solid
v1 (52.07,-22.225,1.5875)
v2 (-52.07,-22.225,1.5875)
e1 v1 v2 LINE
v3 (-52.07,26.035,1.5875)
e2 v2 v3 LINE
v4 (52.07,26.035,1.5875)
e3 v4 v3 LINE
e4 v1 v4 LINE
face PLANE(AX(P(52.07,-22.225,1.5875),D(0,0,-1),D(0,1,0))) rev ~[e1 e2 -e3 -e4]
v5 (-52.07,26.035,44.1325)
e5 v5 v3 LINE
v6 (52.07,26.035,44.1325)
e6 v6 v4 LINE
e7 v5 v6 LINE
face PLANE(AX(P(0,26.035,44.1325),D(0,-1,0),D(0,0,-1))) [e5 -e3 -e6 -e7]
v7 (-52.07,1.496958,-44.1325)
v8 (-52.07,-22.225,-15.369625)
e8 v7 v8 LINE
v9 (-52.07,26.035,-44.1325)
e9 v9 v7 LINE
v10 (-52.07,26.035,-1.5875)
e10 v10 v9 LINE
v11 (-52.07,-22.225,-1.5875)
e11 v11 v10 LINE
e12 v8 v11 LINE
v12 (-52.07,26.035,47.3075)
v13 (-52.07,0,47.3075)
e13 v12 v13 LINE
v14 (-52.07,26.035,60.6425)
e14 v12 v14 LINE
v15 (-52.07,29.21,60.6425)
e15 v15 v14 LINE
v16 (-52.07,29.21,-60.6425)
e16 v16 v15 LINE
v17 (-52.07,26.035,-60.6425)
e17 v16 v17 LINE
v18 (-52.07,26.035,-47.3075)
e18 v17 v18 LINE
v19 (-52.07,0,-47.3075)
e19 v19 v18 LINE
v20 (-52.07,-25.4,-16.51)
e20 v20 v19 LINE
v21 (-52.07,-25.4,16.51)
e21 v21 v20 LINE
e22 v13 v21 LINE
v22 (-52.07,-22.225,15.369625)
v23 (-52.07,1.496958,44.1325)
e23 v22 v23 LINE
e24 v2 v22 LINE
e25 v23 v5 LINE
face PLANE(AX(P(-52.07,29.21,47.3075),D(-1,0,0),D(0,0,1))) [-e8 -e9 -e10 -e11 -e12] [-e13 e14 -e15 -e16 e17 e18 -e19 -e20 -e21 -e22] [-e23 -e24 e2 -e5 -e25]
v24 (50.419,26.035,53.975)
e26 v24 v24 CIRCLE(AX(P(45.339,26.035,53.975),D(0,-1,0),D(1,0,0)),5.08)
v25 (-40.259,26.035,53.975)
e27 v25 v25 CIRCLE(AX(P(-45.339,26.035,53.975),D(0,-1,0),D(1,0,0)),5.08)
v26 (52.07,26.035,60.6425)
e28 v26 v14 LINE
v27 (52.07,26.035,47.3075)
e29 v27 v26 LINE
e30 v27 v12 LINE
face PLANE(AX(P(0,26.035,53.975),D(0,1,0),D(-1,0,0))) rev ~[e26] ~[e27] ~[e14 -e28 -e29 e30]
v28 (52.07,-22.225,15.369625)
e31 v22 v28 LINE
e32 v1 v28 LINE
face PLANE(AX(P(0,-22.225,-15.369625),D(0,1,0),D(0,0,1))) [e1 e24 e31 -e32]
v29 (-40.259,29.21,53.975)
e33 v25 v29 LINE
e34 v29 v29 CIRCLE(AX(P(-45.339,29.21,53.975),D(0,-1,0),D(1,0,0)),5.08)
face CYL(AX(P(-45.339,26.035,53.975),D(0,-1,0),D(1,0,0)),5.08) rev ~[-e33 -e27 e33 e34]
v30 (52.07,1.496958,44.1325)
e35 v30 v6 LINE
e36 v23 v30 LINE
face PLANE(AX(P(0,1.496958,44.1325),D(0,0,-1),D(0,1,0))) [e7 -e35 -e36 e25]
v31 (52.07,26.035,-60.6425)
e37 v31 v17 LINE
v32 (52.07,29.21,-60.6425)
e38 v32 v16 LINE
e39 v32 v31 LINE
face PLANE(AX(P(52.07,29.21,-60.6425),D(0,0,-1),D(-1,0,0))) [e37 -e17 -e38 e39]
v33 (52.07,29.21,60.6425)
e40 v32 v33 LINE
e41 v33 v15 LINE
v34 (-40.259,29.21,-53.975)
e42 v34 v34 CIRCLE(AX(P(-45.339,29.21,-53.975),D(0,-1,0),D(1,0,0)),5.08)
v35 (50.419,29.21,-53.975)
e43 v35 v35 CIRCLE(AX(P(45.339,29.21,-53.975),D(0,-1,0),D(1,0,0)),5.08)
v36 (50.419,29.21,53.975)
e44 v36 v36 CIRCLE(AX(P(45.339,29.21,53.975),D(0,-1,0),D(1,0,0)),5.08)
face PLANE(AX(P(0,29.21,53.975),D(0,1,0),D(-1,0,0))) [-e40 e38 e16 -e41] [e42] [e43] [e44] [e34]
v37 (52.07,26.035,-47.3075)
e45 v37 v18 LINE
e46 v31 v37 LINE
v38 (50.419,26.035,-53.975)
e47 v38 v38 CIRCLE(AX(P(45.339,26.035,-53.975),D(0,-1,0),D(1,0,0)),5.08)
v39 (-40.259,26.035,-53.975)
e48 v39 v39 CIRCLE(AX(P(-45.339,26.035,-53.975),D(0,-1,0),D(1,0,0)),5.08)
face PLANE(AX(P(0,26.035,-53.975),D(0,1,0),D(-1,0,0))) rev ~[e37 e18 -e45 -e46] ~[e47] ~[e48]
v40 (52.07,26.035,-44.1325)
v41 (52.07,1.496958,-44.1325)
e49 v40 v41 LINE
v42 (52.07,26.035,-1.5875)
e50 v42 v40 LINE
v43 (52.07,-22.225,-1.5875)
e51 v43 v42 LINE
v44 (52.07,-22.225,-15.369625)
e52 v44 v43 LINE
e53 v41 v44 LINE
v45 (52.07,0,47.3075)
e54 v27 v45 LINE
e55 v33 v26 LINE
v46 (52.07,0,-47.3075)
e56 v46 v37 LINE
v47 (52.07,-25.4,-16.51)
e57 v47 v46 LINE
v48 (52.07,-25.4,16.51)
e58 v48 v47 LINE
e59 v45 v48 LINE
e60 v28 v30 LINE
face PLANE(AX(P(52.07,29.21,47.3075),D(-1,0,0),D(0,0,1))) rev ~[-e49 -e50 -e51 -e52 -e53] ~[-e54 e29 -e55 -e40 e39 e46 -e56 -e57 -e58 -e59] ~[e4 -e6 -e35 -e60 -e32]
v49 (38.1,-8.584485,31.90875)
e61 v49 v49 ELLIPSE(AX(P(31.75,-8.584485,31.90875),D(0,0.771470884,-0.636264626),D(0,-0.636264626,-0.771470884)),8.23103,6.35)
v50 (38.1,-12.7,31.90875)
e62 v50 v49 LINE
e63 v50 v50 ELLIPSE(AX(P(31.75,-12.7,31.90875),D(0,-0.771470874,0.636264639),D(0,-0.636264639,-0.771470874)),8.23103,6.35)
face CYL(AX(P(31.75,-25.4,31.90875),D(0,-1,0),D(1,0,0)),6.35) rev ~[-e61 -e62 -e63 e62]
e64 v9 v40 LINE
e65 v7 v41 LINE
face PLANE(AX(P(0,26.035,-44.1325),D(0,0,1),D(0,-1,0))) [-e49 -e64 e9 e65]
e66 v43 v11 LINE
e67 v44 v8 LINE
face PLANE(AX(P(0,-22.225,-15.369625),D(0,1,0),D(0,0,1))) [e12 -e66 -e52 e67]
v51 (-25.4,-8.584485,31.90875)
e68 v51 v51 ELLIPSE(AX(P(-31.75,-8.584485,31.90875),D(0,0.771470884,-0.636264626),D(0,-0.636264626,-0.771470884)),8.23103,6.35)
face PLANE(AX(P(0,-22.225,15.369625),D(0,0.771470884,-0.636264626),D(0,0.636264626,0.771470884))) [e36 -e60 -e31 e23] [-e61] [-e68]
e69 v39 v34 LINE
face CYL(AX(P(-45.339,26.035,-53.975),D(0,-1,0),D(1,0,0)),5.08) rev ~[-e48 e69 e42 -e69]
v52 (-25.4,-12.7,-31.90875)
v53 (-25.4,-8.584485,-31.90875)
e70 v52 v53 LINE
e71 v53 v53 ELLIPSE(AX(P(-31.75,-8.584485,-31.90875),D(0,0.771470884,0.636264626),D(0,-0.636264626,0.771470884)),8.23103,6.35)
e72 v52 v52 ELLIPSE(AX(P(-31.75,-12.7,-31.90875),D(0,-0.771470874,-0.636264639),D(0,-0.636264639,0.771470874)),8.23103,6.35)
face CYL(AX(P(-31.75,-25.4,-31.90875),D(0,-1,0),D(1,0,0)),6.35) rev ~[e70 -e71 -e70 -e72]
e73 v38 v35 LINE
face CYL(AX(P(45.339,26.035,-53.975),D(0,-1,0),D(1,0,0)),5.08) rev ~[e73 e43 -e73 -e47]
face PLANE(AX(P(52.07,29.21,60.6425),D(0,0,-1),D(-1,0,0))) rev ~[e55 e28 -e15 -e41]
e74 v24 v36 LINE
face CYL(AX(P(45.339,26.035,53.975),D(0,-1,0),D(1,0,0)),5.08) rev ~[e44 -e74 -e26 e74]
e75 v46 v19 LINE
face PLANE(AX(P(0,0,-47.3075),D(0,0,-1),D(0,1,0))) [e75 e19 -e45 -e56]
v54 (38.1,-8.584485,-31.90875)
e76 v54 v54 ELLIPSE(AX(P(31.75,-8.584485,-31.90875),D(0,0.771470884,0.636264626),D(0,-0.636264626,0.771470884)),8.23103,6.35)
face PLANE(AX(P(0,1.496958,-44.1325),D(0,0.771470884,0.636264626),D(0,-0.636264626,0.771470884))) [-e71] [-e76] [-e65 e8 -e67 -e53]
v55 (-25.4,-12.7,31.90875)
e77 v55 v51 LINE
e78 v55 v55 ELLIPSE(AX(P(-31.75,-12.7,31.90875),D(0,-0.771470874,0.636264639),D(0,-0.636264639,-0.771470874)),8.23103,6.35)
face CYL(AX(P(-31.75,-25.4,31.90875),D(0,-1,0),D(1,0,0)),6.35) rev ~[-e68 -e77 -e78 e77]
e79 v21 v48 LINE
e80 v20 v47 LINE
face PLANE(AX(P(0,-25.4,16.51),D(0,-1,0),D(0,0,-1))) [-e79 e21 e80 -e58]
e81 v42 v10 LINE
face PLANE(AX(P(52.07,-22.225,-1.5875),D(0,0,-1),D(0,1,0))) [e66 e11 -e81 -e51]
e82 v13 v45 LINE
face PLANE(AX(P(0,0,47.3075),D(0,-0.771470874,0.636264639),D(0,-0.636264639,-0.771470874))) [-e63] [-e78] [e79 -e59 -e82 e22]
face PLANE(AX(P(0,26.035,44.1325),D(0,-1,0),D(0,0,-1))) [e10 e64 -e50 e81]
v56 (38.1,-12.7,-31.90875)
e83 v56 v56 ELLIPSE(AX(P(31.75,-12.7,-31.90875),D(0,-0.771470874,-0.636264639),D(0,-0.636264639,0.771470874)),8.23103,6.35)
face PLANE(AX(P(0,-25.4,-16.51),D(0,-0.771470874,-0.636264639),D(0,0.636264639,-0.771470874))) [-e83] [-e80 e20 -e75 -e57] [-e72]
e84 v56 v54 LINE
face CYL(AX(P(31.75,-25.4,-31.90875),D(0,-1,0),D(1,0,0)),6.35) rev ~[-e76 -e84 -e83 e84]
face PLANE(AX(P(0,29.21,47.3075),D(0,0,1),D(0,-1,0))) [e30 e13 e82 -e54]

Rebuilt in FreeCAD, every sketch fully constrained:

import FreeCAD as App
import Part
import Sketcher
Q = App.Units.Quantity


def add_polygon(sketch, points):
    """Adds a closed chain of lines whose ends are joined by coincident constraints."""
    first, n = sketch.GeometryCount, len(points)
    for a, b in zip(points, points[1:] + points[:1]):
        sketch.addGeometry(Part.LineSegment(App.Vector(*a, 0), App.Vector(*b, 0)), False)
    for i in range(n):
        sketch.addConstraint(Sketcher.Constraint("Coincident", first + i, 2, first + (i + 1) % n, 1))

doc = App.newDocument("Part")
body = doc.addObject("PartDesign::Body", "Body")

sketch1 = body.newObject("Sketcher::SketchObject", "Sketch")
sketch1.AttachmentSupport = (doc.getObject("YZ_Plane"), [""])
sketch1.MapMode = "FlatFace"
add_polygon(sketch1, [(29, 47), (0, 47), (-25, 17), (-25, -17), (0, -47), (29, -47)])
add_polygon(sketch1, [(-22, -15), (-22, 15), (1, 44), (26, 44), (26, -44), (1, -44)])
sketch1.addConstraint([
    Sketcher.Constraint("Horizontal", 0),
    Sketcher.Constraint("Vertical", 2),
    Sketcher.Constraint("Horizontal", 4),
    Sketcher.Constraint("Vertical", 5),
    Sketcher.Constraint("Vertical", 6),
    Sketcher.Constraint("Horizontal", 8),
    Sketcher.Constraint("Vertical", 9),
    Sketcher.Constraint("Horizontal", 10),
    Sketcher.Constraint("Symmetric", 0, 2, 3, 2, -1, 1),
    Sketcher.Constraint("Symmetric", 7, 2, 10, 2, -1),
    Sketcher.Constraint("PointOnObject", 0, 2, -2),
    Sketcher.Constraint("Parallel", 1, 7),
    Sketcher.Constraint("Parallel", 3, 11),
    Sketcher.Constraint("Equal", 1, 3),
    Sketcher.Constraint("DistanceY", 2, 2, 2, 1, Q("1.3 in")),
    Sketcher.Constraint("DistanceX", 1, 2, -1, 1, Q("1 in")),
    Sketcher.Constraint("DistanceX", 0, 2, 0, 1, Q("1.15 in")),
    Sketcher.Constraint("DistanceX", 6, 2, 8, 2, Q("1.9 in")),
    Sketcher.Constraint("DistanceY", 5, 1, 5, 2, Q("3.725 in")),
    Sketcher.Constraint("DistanceY", 9, 2, 9, 1, Q("3.475 in")),
    Sketcher.Constraint("DistanceX", 6, 2, -1, 1, Q("0.875 in")),
    Sketcher.Constraint("DistanceY", 6, 1, 6, 2, Q("30.73925 mm")),
])
pad1 = body.newObject("PartDesign::Pad", "Pad")
pad1.Profile = sketch1
pad1.Type = "TwoLengths"
pad1.Length = Q("2.05 in")
pad1.Length2 = Q("2.05 in")

sketch2 = body.newObject("Sketcher::SketchObject", "Sketch001")
sketch2.AttachmentSupport = (doc.getObject("YZ_Plane"), [""])
sketch2.MapMode = "FlatFace"
sketch2.AttachmentOffset = App.Placement(App.Vector(0, 0, 2.05 * 25.4), App.Rotation())
add_polygon(sketch2, [(-22.2, 1.6), (-22.2, -1.6), (26, -1.6), (26, 1.6)])
sketch2.addConstraint([
    Sketcher.Constraint("Vertical", 0),
    Sketcher.Constraint("Horizontal", 1),
    Sketcher.Constraint("Vertical", 2),
    Sketcher.Constraint("Horizontal", 3),
    Sketcher.Constraint("DistanceX", 1, 1, 1, 2, Q("1.9 in")),
    Sketcher.Constraint("DistanceY", 0, 2, 0, 1, Q("0.125 in")),
    Sketcher.Constraint("DistanceX", 0, 2, -1, 1, Q("0.875 in")),
    Sketcher.Constraint("DistanceY", 0, 2, -1, 1, Q("0.0625 in")),
])
pad2 = body.newObject("PartDesign::Pad", "Pad001")
pad2.Profile = sketch2
pad2.Length = Q("4.1 in")
pad2.Reversed = True

sketch3 = body.newObject("Sketcher::SketchObject", "Sketch002")
sketch3.AttachmentSupport = (doc.getObject("XZ_Plane"), [""])
sketch3.MapMode = "FlatFace"
sketch3.AttachmentOffset = App.Placement(App.Vector(0, 0, -1.15 * 25.4), App.Rotation())
add_polygon(sketch3, [(52, 61), (52, 47), (-52, 47), (-52, 61)])
add_polygon(sketch3, [(52, -47), (52, -61), (-52, -61), (-52, -47)])
sketch3.addConstraint([
    Sketcher.Constraint("Vertical", 0),
    Sketcher.Constraint("Horizontal", 1),
    Sketcher.Constraint("Vertical", 2),
    Sketcher.Constraint("Horizontal", 3),
    Sketcher.Constraint("Vertical", 4),
    Sketcher.Constraint("Horizontal", 5),
    Sketcher.Constraint("Vertical", 6),
    Sketcher.Constraint("Horizontal", 7),
    Sketcher.Constraint("Symmetric", 2, 2, 4, 2, -1, 1),
    Sketcher.Constraint("Symmetric", 0, 2, 6, 2, -1, 1),
    Sketcher.Constraint("Vertical", 3, 2, 4, 2),
    Sketcher.Constraint("DistanceX", 1, 2, 1, 1, Q("4.1 in")),
    Sketcher.Constraint("DistanceY", 0, 2, 0, 1, Q("0.525 in")),
    Sketcher.Constraint("DistanceY", 4, 2, 0, 2, Q("4.25 in")),
])
pad3 = body.newObject("PartDesign::Pad", "Pad002")
pad3.Profile = sketch3
pad3.Length = Q("0.125 in")

sketch4 = body.newObject("Sketcher::SketchObject", "Sketch003")
sketch4.AttachmentSupport = (doc.getObject("XZ_Plane"), [""])
sketch4.MapMode = "FlatFace"
sketch4.AttachmentOffset = App.Placement(App.Vector(0, 0, -1.025 * 25.4), App.Rotation())
sketch4.addGeometry([
    Part.Circle(App.Vector(-45, 54, 0), App.Vector(0, 0, 1), 5),
    Part.Circle(App.Vector(45, 54, 0), App.Vector(0, 0, 1), 5),
    Part.Circle(App.Vector(45, -54, 0), App.Vector(0, 0, 1), 5),
    Part.Circle(App.Vector(-45, -54, 0), App.Vector(0, 0, 1), 5),
], False)
sketch4.addConstraint([
    Sketcher.Constraint("Equal", 0, 1),
    Sketcher.Constraint("Equal", 1, 2),
    Sketcher.Constraint("Equal", 2, 3),
    Sketcher.Constraint("Symmetric", 0, 3, 2, 3, -1, 1),
    Sketcher.Constraint("Symmetric", 1, 3, 3, 3, -1, 1),
    Sketcher.Constraint("Symmetric", 0, 3, 1, 3, -2),
    Sketcher.Constraint("Diameter", 0, Q("0.4 in")),
    Sketcher.Constraint("DistanceX", 0, 3, 1, 3, Q("3.57 in")),
    Sketcher.Constraint("DistanceY", 2, 3, 1, 3, Q("4.25 in")),
])
pocket1 = body.newObject("PartDesign::Pocket", "Pocket")
pocket1.Profile = sketch4
pocket1.Type = "ThroughAll"

sketch5 = body.newObject("Sketcher::SketchObject", "Sketch004")
sketch5.AttachmentSupport = (doc.getObject("XZ_Plane"), [""])
sketch5.MapMode = "FlatFace"
sketch5.AttachmentOffset = App.Placement(App.Vector(0, 0, 1 * 25.4), App.Rotation())
sketch5.addGeometry([
    Part.Circle(App.Vector(-32, 32, 0), App.Vector(0, 0, 1), 6),
    Part.Circle(App.Vector(32, 32, 0), App.Vector(0, 0, 1), 6),
    Part.Circle(App.Vector(32, -32, 0), App.Vector(0, 0, 1), 6),
    Part.Circle(App.Vector(-32, -32, 0), App.Vector(0, 0, 1), 6),
], False)
sketch5.addConstraint([
    Sketcher.Constraint("Equal", 0, 1),
    Sketcher.Constraint("Equal", 1, 2),
    Sketcher.Constraint("Equal", 2, 3),
    Sketcher.Constraint("Symmetric", 0, 3, 2, 3, -1, 1),
    Sketcher.Constraint("Symmetric", 1, 3, 3, 3, -1, 1),
    Sketcher.Constraint("Symmetric", 0, 3, 1, 3, -2),
    Sketcher.Constraint("Diameter", 0, Q("0.5 in")),
    Sketcher.Constraint("DistanceX", 0, 3, 1, 3, Q("2.5 in")),
    Sketcher.Constraint("DistanceY", 2, 3, 1, 3, Q("2.5125 in")),
])
pocket2 = body.newObject("PartDesign::Pocket", "Pocket001")
pocket2.Profile = sketch5
pocket2.Length = Q("2.025 in")

doc.recompute()
